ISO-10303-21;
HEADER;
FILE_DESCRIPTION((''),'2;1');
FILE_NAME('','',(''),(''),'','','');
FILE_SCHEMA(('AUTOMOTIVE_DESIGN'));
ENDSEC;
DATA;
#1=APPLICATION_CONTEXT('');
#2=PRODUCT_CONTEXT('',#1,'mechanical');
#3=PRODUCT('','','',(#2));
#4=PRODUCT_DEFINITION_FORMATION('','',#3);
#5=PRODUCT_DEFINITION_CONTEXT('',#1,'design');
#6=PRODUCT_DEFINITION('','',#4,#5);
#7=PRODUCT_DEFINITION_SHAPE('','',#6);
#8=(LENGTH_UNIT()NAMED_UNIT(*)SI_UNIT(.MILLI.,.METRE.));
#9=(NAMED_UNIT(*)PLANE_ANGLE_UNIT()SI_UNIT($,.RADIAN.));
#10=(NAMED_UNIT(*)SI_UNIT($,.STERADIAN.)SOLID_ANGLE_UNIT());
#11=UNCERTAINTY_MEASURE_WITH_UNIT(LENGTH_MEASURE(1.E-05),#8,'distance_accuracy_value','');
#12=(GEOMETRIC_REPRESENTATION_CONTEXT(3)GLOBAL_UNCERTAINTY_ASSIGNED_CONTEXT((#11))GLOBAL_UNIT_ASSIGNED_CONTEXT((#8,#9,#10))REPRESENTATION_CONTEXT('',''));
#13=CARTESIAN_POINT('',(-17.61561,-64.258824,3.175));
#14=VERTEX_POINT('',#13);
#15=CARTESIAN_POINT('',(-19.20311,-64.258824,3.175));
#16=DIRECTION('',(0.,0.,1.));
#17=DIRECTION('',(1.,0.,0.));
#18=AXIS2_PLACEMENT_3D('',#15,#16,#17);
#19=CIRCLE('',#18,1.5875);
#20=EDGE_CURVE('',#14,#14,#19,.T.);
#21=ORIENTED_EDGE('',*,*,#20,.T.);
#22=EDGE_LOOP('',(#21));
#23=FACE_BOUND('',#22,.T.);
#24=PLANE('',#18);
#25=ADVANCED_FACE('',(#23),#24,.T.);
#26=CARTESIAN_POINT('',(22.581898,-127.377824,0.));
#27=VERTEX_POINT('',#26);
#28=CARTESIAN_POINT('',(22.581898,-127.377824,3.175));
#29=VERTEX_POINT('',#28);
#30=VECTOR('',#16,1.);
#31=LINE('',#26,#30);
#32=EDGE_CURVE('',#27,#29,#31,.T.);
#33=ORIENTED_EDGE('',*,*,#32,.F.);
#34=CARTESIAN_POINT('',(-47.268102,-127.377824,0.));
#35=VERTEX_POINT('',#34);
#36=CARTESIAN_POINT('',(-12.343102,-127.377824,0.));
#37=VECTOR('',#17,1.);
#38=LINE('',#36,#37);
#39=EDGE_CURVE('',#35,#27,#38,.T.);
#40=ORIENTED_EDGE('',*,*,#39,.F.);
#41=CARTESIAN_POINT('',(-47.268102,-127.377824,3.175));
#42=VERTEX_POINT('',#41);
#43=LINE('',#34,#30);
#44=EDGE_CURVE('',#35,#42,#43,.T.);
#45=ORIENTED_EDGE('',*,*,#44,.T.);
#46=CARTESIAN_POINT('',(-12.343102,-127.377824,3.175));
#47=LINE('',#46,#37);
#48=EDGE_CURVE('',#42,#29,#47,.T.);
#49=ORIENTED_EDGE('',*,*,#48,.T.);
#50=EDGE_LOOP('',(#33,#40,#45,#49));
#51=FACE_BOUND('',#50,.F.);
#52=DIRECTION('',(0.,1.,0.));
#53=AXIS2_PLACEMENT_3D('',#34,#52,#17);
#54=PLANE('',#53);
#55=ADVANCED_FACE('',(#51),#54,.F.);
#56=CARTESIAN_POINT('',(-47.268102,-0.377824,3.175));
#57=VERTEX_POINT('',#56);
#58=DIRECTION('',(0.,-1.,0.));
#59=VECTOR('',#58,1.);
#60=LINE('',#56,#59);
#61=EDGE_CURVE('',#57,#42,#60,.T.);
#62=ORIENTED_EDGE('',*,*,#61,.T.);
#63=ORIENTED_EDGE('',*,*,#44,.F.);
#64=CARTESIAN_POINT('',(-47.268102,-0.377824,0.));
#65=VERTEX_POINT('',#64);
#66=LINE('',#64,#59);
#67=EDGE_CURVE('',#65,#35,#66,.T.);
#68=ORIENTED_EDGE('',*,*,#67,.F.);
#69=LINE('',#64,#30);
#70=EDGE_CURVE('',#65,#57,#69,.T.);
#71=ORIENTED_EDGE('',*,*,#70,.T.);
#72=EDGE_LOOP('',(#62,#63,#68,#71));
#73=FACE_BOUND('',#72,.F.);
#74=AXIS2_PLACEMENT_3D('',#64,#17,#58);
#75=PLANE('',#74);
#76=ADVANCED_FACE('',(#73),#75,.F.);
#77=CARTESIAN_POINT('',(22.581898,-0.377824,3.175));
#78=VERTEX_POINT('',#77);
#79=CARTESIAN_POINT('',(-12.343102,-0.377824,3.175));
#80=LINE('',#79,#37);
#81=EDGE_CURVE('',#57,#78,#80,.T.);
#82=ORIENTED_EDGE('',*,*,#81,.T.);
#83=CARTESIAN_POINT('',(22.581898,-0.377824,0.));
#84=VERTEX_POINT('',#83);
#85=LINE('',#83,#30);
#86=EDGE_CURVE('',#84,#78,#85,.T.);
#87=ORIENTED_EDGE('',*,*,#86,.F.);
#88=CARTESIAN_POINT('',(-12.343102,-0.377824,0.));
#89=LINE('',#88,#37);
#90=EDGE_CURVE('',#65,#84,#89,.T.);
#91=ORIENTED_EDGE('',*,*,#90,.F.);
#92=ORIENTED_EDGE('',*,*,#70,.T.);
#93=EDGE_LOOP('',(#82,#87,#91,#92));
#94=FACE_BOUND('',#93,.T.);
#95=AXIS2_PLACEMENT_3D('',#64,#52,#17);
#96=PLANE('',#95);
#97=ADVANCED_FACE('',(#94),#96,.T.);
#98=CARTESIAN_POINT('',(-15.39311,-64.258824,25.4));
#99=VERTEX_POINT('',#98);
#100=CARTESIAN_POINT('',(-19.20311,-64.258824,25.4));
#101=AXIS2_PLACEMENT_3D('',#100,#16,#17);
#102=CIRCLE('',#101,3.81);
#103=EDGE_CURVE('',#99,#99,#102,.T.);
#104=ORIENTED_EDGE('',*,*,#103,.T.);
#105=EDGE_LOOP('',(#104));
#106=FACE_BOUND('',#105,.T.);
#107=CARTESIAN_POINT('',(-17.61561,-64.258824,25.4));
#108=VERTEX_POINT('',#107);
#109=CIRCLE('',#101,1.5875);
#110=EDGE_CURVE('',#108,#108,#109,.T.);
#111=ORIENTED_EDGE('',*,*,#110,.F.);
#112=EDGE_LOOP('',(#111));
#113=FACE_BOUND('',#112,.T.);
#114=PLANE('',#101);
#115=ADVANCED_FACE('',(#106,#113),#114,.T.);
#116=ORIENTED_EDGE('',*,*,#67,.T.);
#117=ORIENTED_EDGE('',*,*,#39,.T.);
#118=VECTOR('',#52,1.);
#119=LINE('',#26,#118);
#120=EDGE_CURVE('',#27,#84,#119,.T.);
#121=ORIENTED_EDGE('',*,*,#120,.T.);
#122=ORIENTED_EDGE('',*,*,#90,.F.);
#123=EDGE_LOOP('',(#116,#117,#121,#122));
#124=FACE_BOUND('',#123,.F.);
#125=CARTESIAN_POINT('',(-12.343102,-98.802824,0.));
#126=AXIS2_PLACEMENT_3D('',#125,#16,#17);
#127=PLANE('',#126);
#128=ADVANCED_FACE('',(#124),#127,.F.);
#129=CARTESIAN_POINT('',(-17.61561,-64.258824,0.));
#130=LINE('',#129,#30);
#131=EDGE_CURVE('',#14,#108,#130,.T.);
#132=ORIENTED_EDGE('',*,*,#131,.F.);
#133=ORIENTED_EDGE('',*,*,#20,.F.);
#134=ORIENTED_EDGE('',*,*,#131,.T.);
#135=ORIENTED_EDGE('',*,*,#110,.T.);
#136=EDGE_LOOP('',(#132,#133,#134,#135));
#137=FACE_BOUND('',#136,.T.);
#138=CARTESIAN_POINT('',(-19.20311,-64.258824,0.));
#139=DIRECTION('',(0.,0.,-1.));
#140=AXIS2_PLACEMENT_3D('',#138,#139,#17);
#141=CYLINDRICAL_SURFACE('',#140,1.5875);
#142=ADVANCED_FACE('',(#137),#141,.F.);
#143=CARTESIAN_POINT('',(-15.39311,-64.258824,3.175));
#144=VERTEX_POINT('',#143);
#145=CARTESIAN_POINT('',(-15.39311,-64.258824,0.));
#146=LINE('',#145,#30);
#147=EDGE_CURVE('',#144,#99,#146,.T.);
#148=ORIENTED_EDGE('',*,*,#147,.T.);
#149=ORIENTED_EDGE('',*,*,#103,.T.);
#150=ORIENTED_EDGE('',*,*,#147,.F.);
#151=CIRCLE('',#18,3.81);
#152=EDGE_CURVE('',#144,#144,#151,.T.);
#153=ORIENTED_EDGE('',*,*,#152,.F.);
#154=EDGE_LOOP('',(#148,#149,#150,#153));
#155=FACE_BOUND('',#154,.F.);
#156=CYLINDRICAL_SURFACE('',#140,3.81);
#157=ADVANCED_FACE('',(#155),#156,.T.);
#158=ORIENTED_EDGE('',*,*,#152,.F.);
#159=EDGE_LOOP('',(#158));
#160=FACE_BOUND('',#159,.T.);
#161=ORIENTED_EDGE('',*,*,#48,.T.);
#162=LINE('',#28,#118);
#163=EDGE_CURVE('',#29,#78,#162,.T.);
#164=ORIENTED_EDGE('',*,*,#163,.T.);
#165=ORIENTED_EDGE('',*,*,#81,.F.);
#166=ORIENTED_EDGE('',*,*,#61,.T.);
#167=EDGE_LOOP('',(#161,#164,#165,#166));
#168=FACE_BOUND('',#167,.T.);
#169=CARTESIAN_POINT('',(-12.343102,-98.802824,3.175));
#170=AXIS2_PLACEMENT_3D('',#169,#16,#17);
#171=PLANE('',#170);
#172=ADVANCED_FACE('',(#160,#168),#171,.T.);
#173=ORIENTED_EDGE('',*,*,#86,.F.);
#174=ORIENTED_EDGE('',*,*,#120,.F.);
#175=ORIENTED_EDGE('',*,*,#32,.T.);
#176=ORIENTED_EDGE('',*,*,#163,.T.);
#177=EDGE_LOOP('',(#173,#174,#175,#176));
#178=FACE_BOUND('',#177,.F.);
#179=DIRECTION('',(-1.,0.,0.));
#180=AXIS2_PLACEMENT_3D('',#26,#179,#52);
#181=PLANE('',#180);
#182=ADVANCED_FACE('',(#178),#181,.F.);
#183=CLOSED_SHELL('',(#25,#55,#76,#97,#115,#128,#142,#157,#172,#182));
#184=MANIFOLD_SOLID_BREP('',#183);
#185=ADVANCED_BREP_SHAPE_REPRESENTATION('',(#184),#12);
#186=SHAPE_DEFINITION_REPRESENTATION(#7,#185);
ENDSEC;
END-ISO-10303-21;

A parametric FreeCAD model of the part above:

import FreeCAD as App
import Part
import Sketcher
Q = App.Units.Quantity


def add_polygon(sketch, points):
    """Adds a closed chain of lines whose ends are joined by coincident constraints."""
    first, n = sketch.GeometryCount, len(points)
    for a, b in zip(points, points[1:] + points[:1]):
        sketch.addGeometry(Part.LineSegment(App.Vector(*a, 0), App.Vector(*b, 0)), False)
    for i in range(n):
        sketch.addConstraint(Sketcher.Constraint("Coincident", first + i, 2, first + (i + 1) % n, 1))

doc = App.newDocument("Part")
body = doc.addObject("PartDesign::Body", "Body")
body.AllowCompound = True

sketch1 = body.newObject("Sketcher::SketchObject", "Sketch")
sketch1.AttachmentSupport = (doc.getObject("XY_Plane"), [""])
sketch1.MapMode = "FlatFace"
add_polygon(sketch1, [(-47.3, -127.4), (22.6, -127.4), (22.6, -0.4), (-47.3, -0.4)])
sketch1.addGeometry(Part.Circle(App.Vector(-19.2, -64.3, 0), App.Vector(0, 0, 1), 3.8), False)
sketch1.addGeometry(Part.Circle(App.Vector(-19.2, -64.3, 0), App.Vector(0, 0, 1), 1.6), False)
sketch1.addConstraint(Sketcher.Constraint("Horizontal", 0))
sketch1.addConstraint(Sketcher.Constraint("Vertical", 1))
sketch1.addConstraint(Sketcher.Constraint("Horizontal", 2))
sketch1.addConstraint(Sketcher.Constraint("Vertical", 3))
sketch1.addConstraint(Sketcher.Constraint("Coincident", 5, 3, 4, 3))
sketch1.addConstraint(Sketcher.Constraint("Diameter", 4, Q("0.3 in")))
sketch1.addConstraint(Sketcher.Constraint("DistanceY", 1, 1, 1, 2, Q("5 in")))
sketch1.addConstraint(Sketcher.Constraint("Diameter", 5, Q("0.125 in")))
sketch1.addConstraint(Sketcher.Constraint("DistanceX", 0, 1, 0, 2, Q("2.75 in")))
sketch1.addConstraint(Sketcher.Constraint("DistanceY", 0, 2, 4, 3, Q("2.485 in")))
sketch1.addConstraint(Sketcher.Constraint("DistanceX", 4, 3, -1, 1, 19.20311))
sketch1.addConstraint(Sketcher.Constraint("DistanceX", 2, 2, 4, 3, 28.064992))
sketch1.addConstraint(Sketcher.Constraint("DistanceY", 4, 3, -1, 1, 64.258824))
pad1 = body.newObject("PartDesign::Pad", "Pad")
pad1.Profile = sketch1
pad1.Length = Q("0.125 in")

sketch2 = body.newObject("Sketcher::SketchObject", "Sketch001")
sketch2.AttachmentSupport = (doc.getObject("XY_Plane"), [""])
sketch2.MapMode = "FlatFace"
sketch2.addGeometry(Part.Circle(App.Vector(-19.2, -64.3, 0), App.Vector(0, 0, 1), 3.8), False)
sketch2.addGeometry(Part.Circle(App.Vector(-19.2, -64.3, 0), App.Vector(0, 0, 1), 1.6), False)
sketch2.addConstraint(Sketcher.Constraint("Coincident", 1, 3, 0, 3))
sketch2.addConstraint(Sketcher.Constraint("Diameter", 0, Q("0.3 in")))
sketch2.addConstraint(Sketcher.Constraint("Diameter", 1, Q("0.125 in")))
sketch2.addConstraint(Sketcher.Constraint("DistanceX", 0, 3, -1, 1, 19.20311))
sketch2.addConstraint(Sketcher.Constraint("DistanceY", 0, 3, -1, 1, 64.258824))
pad2 = body.newObject("PartDesign::Pad", "Pad001")
pad2.Profile = sketch2
pad2.Length = Q("1 in")

doc.recompute()
